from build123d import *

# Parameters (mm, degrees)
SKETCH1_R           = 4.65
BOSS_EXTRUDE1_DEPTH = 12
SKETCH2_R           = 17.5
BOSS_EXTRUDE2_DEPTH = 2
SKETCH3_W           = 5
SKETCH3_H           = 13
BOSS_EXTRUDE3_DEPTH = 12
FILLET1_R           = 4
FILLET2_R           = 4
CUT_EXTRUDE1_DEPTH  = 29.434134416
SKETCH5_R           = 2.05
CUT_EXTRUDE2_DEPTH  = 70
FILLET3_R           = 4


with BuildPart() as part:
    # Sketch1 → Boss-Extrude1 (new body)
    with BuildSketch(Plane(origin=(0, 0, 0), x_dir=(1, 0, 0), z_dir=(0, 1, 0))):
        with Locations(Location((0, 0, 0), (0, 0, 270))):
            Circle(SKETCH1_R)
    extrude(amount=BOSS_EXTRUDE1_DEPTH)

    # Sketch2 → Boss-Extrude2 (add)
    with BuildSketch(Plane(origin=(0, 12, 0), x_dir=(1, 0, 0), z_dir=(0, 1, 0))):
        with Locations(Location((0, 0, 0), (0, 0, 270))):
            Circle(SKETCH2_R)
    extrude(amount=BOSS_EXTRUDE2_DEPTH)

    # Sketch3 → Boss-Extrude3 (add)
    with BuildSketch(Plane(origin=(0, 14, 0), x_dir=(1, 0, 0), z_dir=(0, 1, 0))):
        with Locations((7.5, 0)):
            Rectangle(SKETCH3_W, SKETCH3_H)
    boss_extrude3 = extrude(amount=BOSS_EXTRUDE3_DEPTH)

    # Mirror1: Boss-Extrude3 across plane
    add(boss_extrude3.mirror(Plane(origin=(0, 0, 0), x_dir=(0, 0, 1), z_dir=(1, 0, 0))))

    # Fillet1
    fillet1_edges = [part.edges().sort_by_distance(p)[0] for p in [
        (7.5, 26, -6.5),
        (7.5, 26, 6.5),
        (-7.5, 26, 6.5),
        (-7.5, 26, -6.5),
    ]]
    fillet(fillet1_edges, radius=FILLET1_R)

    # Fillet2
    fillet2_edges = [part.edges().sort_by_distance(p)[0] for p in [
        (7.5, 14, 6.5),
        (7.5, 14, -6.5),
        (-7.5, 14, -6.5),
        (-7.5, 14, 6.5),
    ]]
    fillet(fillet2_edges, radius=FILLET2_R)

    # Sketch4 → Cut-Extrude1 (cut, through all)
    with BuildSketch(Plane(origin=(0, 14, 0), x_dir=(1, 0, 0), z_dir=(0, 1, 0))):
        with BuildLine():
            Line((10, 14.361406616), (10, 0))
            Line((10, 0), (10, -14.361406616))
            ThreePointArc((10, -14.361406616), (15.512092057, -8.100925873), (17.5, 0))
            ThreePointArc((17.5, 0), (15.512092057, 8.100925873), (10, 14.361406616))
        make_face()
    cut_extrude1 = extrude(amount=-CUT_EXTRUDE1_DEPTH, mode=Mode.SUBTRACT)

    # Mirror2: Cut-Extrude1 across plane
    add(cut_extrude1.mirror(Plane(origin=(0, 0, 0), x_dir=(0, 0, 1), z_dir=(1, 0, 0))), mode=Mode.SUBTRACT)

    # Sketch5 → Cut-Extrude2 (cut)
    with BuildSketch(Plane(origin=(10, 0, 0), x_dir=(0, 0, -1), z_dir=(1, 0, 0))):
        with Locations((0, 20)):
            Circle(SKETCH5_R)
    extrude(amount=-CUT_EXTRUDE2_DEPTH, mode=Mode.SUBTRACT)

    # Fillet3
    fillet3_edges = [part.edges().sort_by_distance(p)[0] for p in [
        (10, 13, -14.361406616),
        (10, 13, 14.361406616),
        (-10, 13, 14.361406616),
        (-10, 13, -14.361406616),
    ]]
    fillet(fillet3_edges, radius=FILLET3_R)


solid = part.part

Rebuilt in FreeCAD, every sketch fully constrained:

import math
import FreeCAD as App
import Part
import Sketcher

V = App.Vector
Q = App.Units.Quantity


def edges_at(feature, points):
    """Names of the edges that pass closest to the given points."""
    edges = feature.Shape.Edges
    near = lambda p: min(range(len(edges)), key=lambda i: edges[i].distToShape(Part.Vertex(*p))[0])
    return sorted({f"Edge{near(p) + 1}" for p in points})

doc = App.newDocument("Part")
params = doc.addObject("Spreadsheet::Sheet", "Params")
for row, (alias, value) in enumerate([
    ("sketch1_diameter", "9.3 mm"),
    ("pad1_length", "12 mm"),
    ("sketch2_diameter", "35 mm"),
    ("pad2_length", "2 mm"),
    ("sketch3_width", "5 mm"),
    ("sketch3_height", "13 mm"),
    ("pad3_length", "12 mm"),
    ("fillet_radius", "4 mm"),
    ("fillet2_radius", "4 mm"),
    ("sketch4_radius", "17.5 mm"),
    ("sketch5_diameter", "4.1 mm"),
    ("pocket2_length", "70 mm"),
    ("fillet3_radius", "4 mm"),
], start=1):
    params.set(f"A{row}", alias)
    params.set(f"B{row}", "=" + value)
    params.setAlias(f"B{row}", alias)

body = doc.addObject("PartDesign::Body", "Body")

# Sketch on XZ plane
sketch1 = body.newObject("Sketcher::SketchObject", "Sketch")
sketch1.AttachmentSupport = (doc.getObject("XZ_Plane"), [""])
sketch1.MapMode = "FlatFace"
sketch1.addGeometry(Part.Circle(V(0, 0, 0), V(0, 0, 1), 4.7), False)
sketch1.addConstraint(Sketcher.Constraint("Coincident", 0, 3, -1, 1))
sketch1.addConstraint(Sketcher.Constraint("Diameter", 0, Q("9.3 mm")))
sketch1.setExpression("Constraints[1]", "Params.sketch1_diameter")
pad1 = body.newObject("PartDesign::Pad", "Pad")
pad1.Profile = sketch1
pad1.setExpression("Length", "Params.pad1_length")
pad1.Reversed = True

# Sketch on XZ plane
sketch2 = body.newObject("Sketcher::SketchObject", "Sketch001")
sketch2.AttachmentSupport = (doc.getObject("XZ_Plane"), [""])
sketch2.MapMode = "FlatFace"
sketch2.AttachmentOffset = App.Placement(V(0, 0, -12), App.Rotation())
sketch2.addGeometry(Part.Circle(V(0, 0, 0), V(0, 0, 1), 18), False)
sketch2.addConstraint(Sketcher.Constraint("Coincident", 0, 3, -1, 1))
sketch2.addConstraint(Sketcher.Constraint("Diameter", 0, Q("35 mm")))
sketch2.setExpression("Constraints[1]", "Params.sketch2_diameter")
pad2 = body.newObject("PartDesign::Pad", "Pad001")
pad2.Profile = sketch2
pad2.setExpression("Length", "Params.pad2_length")
pad2.Reversed = True

# Sketch on XZ plane
sketch3 = body.newObject("Sketcher::SketchObject", "Sketch002")
sketch3.AttachmentSupport = (doc.getObject("XZ_Plane"), [""])
sketch3.MapMode = "FlatFace"
sketch3.AttachmentOffset = App.Placement(V(0, 0, -14), App.Rotation())
sketch3.addGeometry(Part.LineSegment(V(5, -6, 0), V(5, 6, 0)), False)
sketch3.addGeometry(Part.LineSegment(V(5, 6, 0), V(10, 6, 0)), False)
sketch3.addGeometry(Part.LineSegment(V(10, 6, 0), V(10, -6, 0)), False)
sketch3.addGeometry(Part.LineSegment(V(10, -6, 0), V(5, -6, 0)), False)
sketch3.addConstraint(Sketcher.Constraint("Coincident", 0, 2, 1, 1))
sketch3.addConstraint(Sketcher.Constraint("Coincident", 1, 2, 2, 1))
sketch3.addConstraint(Sketcher.Constraint("Coincident", 2, 2, 3, 1))
sketch3.addConstraint(Sketcher.Constraint("Coincident", 3, 2, 0, 1))
sketch3.addConstraint(Sketcher.Constraint("Vertical", 0))
sketch3.addConstraint(Sketcher.Constraint("Horizontal", 1))
sketch3.addConstraint(Sketcher.Constraint("Vertical", 2))
sketch3.addConstraint(Sketcher.Constraint("Horizontal", 3))
sketch3.addConstraint(Sketcher.Constraint("DistanceX", 1, 1, 1, 2, Q("5 mm")))
sketch3.addConstraint(Sketcher.Constraint("DistanceY", 0, 1, 0, 2, Q("13 mm")))
sketch3.addConstraint(Sketcher.Constraint("DistanceX", -1, 1, 0, 2, Q("5 mm")))
sketch3.addConstraint(Sketcher.Constraint("DistanceY", -1, 1, 0, 2, Q("6.5 mm")))
sketch3.setExpression("Constraints[8]", "Params.sketch3_width")
sketch3.setExpression("Constraints[9]", "Params.sketch3_height")
pad3 = body.newObject("PartDesign::Pad", "Pad002")
pad3.Profile = sketch3
pad3.setExpression("Length", "Params.pad3_length")
pad3.Reversed = True
doc.recompute()

mirrored = body.newObject("PartDesign::Mirrored", "Mirrored")
mirrored.Originals = [pad3]
mirrored.MirrorPlane = (doc.getObject("YZ_Plane"), [""])
body.Tip = mirrored
doc.recompute()

fillet = body.newObject("PartDesign::Fillet", "Fillet")
fillet.Base = (mirrored, edges_at(mirrored, [
    (7.5, 26, -6.5),
    (7.5, 26, 6.5),
    (-7.5, 26, 6.5),
    (-7.5, 26, -6.5),
]))
fillet.setExpression("Radius", "Params.fillet_radius")
doc.recompute()

fillet2 = body.newObject("PartDesign::Fillet", "Fillet001")
fillet2.Base = (fillet, edges_at(fillet, [
    (7.5, 14, 6.5),
    (7.5, 14, -6.5),
    (-7.5, 14, -6.5),
    (-7.5, 14, 6.5),
]))
fillet2.setExpression("Radius", "Params.fillet2_radius")

# Sketch on XZ plane
sketch4 = body.newObject("Sketcher::SketchObject", "Sketch003")
sketch4.AttachmentSupport = (doc.getObject("XZ_Plane"), [""])
sketch4.MapMode = "FlatFace"
sketch4.AttachmentOffset = App.Placement(V(0, 0, -14), App.Rotation())
sketch4.addGeometry(Part.LineSegment(V(10, -14, 0), V(10, 14, 0)), False)
sketch4.addGeometry(Part.ArcOfCircle(Part.Circle(V(0, 0, 0), V(0, 0, 1), 18), math.radians(0), math.radians(55)), False)
sketch4.addGeometry(Part.ArcOfCircle(Part.Circle(V(0, 0, 0), V(0, 0, 1), 18), math.radians(-55), math.radians(0)), False)
sketch4.addConstraint(Sketcher.Constraint("Coincident", 0, 2, 1, 2))
sketch4.addConstraint(Sketcher.Constraint("Tangent", 1, 1, 2, 2))
sketch4.addConstraint(Sketcher.Constraint("Coincident", 2, 1, 0, 1))
sketch4.addConstraint(Sketcher.Constraint("Vertical", 0))
sketch4.addConstraint(Sketcher.Constraint("Coincident", 1, 3, -1, 1))
sketch4.addConstraint(Sketcher.Constraint("Equal", 1, 2))
sketch4.addConstraint(Sketcher.Constraint("PointOnObject", 1, 1, -1))
sketch4.addConstraint(Sketcher.Constraint("Radius", 1, Q("17.5 mm")))
sketch4.addConstraint(Sketcher.Constraint("DistanceX", -1, 1, 0, 2, Q("10 mm")))
sketch4.setExpression("Constraints[7]", "Params.sketch4_radius")
pocket1 = body.newObject("PartDesign::Pocket", "Pocket")
pocket1.Profile = sketch4
pocket1.Type = "ThroughAll"
pocket1.Reversed = True
doc.recompute()

mirrored2 = body.newObject("PartDesign::Mirrored", "Mirrored001")
mirrored2.Originals = [pocket1]
mirrored2.MirrorPlane = (doc.getObject("YZ_Plane"), [""])
body.Tip = mirrored2

# Sketch on YZ plane
sketch5 = body.newObject("Sketcher::SketchObject", "Sketch004")
sketch5.AttachmentSupport = (doc.getObject("YZ_Plane"), [""])
sketch5.MapMode = "FlatFace"
sketch5.AttachmentOffset = App.Placement(V(0, 0, 10), App.Rotation())
sketch5.addGeometry(Part.Circle(V(20, 0, 0), V(0, 0, 1), 2), False)
sketch5.addConstraint(Sketcher.Constraint("PointOnObject", 0, 3, -1))
sketch5.addConstraint(Sketcher.Constraint("Diameter", 0, Q("4.1 mm")))
sketch5.addConstraint(Sketcher.Constraint("DistanceX", -1, 1, 0, 3, Q("20 mm")))
sketch5.setExpression("Constraints[1]", "Params.sketch5_diameter")
pocket2 = body.newObject("PartDesign::Pocket", "Pocket001")
pocket2.Profile = sketch5
pocket2.setExpression("Length", "Params.pocket2_length")
doc.recompute()

fillet3 = body.newObject("PartDesign::Fillet", "Fillet002")
fillet3.Base = (pocket2, edges_at(pocket2, [
    (10, 13, -14.361),
    (10, 13, 14.361),
    (-10, 13, 14.361),
    (-10, 13, -14.361),
]))
fillet3.setExpression("Radius", "Params.fillet3_radius")

doc.recompute()
